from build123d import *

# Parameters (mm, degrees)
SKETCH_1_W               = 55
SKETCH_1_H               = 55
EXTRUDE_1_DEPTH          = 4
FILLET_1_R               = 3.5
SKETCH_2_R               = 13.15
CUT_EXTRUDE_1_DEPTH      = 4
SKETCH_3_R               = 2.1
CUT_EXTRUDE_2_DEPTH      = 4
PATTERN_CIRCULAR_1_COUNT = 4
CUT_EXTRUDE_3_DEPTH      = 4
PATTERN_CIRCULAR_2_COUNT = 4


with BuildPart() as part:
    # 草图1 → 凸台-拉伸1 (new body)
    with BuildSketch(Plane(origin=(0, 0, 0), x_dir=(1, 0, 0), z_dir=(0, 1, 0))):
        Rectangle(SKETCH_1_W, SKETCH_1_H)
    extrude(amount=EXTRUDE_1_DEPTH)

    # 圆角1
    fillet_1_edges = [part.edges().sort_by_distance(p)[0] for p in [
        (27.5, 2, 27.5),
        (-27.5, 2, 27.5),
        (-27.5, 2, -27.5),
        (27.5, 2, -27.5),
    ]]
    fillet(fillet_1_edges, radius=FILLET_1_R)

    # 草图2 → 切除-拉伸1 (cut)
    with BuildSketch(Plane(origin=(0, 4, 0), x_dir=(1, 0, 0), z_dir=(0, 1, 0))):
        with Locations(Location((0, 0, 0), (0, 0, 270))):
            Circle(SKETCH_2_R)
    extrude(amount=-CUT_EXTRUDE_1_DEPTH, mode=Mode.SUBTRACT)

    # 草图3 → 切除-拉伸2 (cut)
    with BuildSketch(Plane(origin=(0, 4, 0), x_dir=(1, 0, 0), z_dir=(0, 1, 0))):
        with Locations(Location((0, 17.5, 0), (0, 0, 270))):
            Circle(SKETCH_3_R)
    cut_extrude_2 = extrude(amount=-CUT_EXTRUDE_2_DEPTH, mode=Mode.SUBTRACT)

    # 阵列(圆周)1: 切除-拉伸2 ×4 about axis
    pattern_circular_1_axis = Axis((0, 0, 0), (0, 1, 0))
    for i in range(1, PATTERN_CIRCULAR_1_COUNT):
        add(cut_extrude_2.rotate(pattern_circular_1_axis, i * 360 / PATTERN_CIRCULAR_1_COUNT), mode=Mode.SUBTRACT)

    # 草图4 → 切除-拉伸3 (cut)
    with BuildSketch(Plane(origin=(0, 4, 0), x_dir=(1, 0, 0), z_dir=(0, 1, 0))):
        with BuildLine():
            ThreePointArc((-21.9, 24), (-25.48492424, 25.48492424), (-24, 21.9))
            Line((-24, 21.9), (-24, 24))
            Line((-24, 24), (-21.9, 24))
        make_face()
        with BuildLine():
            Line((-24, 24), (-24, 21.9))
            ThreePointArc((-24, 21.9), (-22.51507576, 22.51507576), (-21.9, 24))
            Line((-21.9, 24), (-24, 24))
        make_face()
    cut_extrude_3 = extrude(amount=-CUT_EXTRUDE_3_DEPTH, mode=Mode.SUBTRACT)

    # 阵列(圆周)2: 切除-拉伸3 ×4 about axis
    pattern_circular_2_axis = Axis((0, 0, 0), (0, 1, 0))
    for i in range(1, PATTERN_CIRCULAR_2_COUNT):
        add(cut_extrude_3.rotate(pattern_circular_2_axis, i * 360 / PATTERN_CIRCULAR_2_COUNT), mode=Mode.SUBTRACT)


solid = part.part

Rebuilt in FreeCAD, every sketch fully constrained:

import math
import FreeCAD as App
import Part
import Sketcher

V = App.Vector
Q = App.Units.Quantity


def edges_at(feature, points):
    """Names of the edges that pass closest to the given points."""
    edges = feature.Shape.Edges
    near = lambda p: min(range(len(edges)), key=lambda i: edges[i].distToShape(Part.Vertex(*p))[0])
    return sorted({f"Edge{near(p) + 1}" for p in points})


def add_polygon(sketch, points):
    """Adds a closed chain of lines whose ends are joined by coincident constraints."""
    first, n = sketch.GeometryCount, len(points)
    for a, b in zip(points, points[1:] + points[:1]):
        sketch.addGeometry(Part.LineSegment(App.Vector(*a, 0), App.Vector(*b, 0)), False)
    for i in range(n):
        sketch.addConstraint(Sketcher.Constraint("Coincident", first + i, 2, first + (i + 1) % n, 1))

doc = App.newDocument("Part")
body = doc.addObject("PartDesign::Body", "Body")

sketch1 = body.newObject("Sketcher::SketchObject", "Sketch")
sketch1.AttachmentSupport = (doc.getObject("XZ_Plane"), [""])
sketch1.MapMode = "FlatFace"
add_polygon(sketch1, [(-28, -28), (-28, 28), (28, 28), (28, -28)])
sketch1.addConstraint(Sketcher.Constraint("Vertical", 0))
sketch1.addConstraint(Sketcher.Constraint("Horizontal", 1))
sketch1.addConstraint(Sketcher.Constraint("Vertical", 2))
sketch1.addConstraint(Sketcher.Constraint("Horizontal", 3))
sketch1.addConstraint(Sketcher.Constraint("Symmetric", 0, 2, 2, 2, -1, 1))
sketch1.addConstraint(Sketcher.Constraint("Equal", 3, 0))
sketch1.addConstraint(Sketcher.Constraint("DistanceX", 1, 1, 1, 2, Q("55 mm")))
pad1 = body.newObject("PartDesign::Pad", "Pad")
pad1.Profile = sketch1
pad1.Length = 4
pad1.Reversed = True
doc.recompute()

fillet = body.newObject("PartDesign::Fillet", "Fillet")
fillet.Base = (pad1, edges_at(pad1, [
    (27.5, 2, 27.5),
    (-27.5, 2, 27.5),
    (-27.5, 2, -27.5),
    (27.5, 2, -27.5),
]))
fillet.Radius = 3.5

sketch2 = body.newObject("Sketcher::SketchObject", "Sketch001")
sketch2.AttachmentSupport = (doc.getObject("XZ_Plane"), [""])
sketch2.MapMode = "FlatFace"
sketch2.AttachmentOffset = App.Placement(V(0, 0, -4), App.Rotation())
sketch2.addGeometry(Part.Circle(V(0, 0, 0), V(0, 0, 1), 13), False)
sketch2.addConstraint(Sketcher.Constraint("Coincident", 0, 3, -1, 1))
sketch2.addConstraint(Sketcher.Constraint("Diameter", 0, Q("26.3 mm")))
pocket1 = body.newObject("PartDesign::Pocket", "Pocket")
pocket1.Profile = sketch2
pocket1.Length = 4
pocket1.Reversed = True

sketch3 = body.newObject("Sketcher::SketchObject", "Sketch002")
sketch3.AttachmentSupport = (doc.getObject("XZ_Plane"), [""])
sketch3.MapMode = "FlatFace"
sketch3.AttachmentOffset = App.Placement(V(0, 0, -4), App.Rotation())
sketch3.addGeometry(Part.Circle(V(0, -17.5, 0), V(0, 0, 1), 2.1), False)
sketch3.addConstraint(Sketcher.Constraint("PointOnObject", 0, 3, -2))
sketch3.addConstraint(Sketcher.Constraint("Diameter", 0, Q("4.2 mm")))
sketch3.addConstraint(Sketcher.Constraint("DistanceY", 0, 3, -1, 1, Q("17.5 mm")))
pocket2 = body.newObject("PartDesign::Pocket", "Pocket001")
pocket2.Profile = sketch3
pocket2.Length = 4
pocket2.Reversed = True
doc.recompute()

polarpattern = body.newObject("PartDesign::PolarPattern", "PolarPattern")
polarpattern.Originals = [pocket2]
polarpattern.Axis = (doc.getObject("Y_Axis"), [""])
polarpattern.Angle = 360
polarpattern.Occurrences = 4
body.Tip = polarpattern

sketch4 = body.newObject("Sketcher::SketchObject", "Sketch003")
sketch4.AttachmentSupport = (doc.getObject("XZ_Plane"), [""])
sketch4.MapMode = "FlatFace"
sketch4.AttachmentOffset = App.Placement(V(0, 0, -4), App.Rotation())
sketch4.addGeometry(Part.ArcOfCircle(Part.Circle(V(-24, -24, 0), V(0, 0, 1), 2.1), math.radians(90), math.radians(360)), False)
sketch4.addGeometry(Part.ArcOfCircle(Part.Circle(V(-24, -24, 0), V(0, 0, 1), 2.1), math.radians(0), math.radians(90)), False)
sketch4.addConstraint(Sketcher.Constraint("Tangent", 0, 1, 1, 2))
sketch4.addConstraint(Sketcher.Constraint("Coincident", 1, 1, 0, 2))
sketch4.addConstraint(Sketcher.Constraint("Horizontal", 0, 3, 1, 1))
sketch4.addConstraint(Sketcher.Constraint("Vertical", 1, 3, 0, 1))
sketch4.addConstraint(Sketcher.Constraint("Radius", 0, Q("2.1 mm")))
sketch4.addConstraint(Sketcher.Constraint("DistanceX", 0, 3, -1, 1, Q("24 mm")))
sketch4.addConstraint(Sketcher.Constraint("DistanceY", 0, 3, -1, 1, Q("24 mm")))
pocket3 = body.newObject("PartDesign::Pocket", "Pocket002")
pocket3.Profile = sketch4
pocket3.Length = 4
pocket3.Reversed = True
doc.recompute()

polarpattern2 = body.newObject("PartDesign::PolarPattern", "PolarPattern001")
polarpattern2.Originals = [pocket3]
polarpattern2.Axis = (doc.getObject("Y_Axis"), [""])
polarpattern2.Angle = 360
polarpattern2.Occurrences = 4
body.Tip = polarpattern2

doc.recompute()
